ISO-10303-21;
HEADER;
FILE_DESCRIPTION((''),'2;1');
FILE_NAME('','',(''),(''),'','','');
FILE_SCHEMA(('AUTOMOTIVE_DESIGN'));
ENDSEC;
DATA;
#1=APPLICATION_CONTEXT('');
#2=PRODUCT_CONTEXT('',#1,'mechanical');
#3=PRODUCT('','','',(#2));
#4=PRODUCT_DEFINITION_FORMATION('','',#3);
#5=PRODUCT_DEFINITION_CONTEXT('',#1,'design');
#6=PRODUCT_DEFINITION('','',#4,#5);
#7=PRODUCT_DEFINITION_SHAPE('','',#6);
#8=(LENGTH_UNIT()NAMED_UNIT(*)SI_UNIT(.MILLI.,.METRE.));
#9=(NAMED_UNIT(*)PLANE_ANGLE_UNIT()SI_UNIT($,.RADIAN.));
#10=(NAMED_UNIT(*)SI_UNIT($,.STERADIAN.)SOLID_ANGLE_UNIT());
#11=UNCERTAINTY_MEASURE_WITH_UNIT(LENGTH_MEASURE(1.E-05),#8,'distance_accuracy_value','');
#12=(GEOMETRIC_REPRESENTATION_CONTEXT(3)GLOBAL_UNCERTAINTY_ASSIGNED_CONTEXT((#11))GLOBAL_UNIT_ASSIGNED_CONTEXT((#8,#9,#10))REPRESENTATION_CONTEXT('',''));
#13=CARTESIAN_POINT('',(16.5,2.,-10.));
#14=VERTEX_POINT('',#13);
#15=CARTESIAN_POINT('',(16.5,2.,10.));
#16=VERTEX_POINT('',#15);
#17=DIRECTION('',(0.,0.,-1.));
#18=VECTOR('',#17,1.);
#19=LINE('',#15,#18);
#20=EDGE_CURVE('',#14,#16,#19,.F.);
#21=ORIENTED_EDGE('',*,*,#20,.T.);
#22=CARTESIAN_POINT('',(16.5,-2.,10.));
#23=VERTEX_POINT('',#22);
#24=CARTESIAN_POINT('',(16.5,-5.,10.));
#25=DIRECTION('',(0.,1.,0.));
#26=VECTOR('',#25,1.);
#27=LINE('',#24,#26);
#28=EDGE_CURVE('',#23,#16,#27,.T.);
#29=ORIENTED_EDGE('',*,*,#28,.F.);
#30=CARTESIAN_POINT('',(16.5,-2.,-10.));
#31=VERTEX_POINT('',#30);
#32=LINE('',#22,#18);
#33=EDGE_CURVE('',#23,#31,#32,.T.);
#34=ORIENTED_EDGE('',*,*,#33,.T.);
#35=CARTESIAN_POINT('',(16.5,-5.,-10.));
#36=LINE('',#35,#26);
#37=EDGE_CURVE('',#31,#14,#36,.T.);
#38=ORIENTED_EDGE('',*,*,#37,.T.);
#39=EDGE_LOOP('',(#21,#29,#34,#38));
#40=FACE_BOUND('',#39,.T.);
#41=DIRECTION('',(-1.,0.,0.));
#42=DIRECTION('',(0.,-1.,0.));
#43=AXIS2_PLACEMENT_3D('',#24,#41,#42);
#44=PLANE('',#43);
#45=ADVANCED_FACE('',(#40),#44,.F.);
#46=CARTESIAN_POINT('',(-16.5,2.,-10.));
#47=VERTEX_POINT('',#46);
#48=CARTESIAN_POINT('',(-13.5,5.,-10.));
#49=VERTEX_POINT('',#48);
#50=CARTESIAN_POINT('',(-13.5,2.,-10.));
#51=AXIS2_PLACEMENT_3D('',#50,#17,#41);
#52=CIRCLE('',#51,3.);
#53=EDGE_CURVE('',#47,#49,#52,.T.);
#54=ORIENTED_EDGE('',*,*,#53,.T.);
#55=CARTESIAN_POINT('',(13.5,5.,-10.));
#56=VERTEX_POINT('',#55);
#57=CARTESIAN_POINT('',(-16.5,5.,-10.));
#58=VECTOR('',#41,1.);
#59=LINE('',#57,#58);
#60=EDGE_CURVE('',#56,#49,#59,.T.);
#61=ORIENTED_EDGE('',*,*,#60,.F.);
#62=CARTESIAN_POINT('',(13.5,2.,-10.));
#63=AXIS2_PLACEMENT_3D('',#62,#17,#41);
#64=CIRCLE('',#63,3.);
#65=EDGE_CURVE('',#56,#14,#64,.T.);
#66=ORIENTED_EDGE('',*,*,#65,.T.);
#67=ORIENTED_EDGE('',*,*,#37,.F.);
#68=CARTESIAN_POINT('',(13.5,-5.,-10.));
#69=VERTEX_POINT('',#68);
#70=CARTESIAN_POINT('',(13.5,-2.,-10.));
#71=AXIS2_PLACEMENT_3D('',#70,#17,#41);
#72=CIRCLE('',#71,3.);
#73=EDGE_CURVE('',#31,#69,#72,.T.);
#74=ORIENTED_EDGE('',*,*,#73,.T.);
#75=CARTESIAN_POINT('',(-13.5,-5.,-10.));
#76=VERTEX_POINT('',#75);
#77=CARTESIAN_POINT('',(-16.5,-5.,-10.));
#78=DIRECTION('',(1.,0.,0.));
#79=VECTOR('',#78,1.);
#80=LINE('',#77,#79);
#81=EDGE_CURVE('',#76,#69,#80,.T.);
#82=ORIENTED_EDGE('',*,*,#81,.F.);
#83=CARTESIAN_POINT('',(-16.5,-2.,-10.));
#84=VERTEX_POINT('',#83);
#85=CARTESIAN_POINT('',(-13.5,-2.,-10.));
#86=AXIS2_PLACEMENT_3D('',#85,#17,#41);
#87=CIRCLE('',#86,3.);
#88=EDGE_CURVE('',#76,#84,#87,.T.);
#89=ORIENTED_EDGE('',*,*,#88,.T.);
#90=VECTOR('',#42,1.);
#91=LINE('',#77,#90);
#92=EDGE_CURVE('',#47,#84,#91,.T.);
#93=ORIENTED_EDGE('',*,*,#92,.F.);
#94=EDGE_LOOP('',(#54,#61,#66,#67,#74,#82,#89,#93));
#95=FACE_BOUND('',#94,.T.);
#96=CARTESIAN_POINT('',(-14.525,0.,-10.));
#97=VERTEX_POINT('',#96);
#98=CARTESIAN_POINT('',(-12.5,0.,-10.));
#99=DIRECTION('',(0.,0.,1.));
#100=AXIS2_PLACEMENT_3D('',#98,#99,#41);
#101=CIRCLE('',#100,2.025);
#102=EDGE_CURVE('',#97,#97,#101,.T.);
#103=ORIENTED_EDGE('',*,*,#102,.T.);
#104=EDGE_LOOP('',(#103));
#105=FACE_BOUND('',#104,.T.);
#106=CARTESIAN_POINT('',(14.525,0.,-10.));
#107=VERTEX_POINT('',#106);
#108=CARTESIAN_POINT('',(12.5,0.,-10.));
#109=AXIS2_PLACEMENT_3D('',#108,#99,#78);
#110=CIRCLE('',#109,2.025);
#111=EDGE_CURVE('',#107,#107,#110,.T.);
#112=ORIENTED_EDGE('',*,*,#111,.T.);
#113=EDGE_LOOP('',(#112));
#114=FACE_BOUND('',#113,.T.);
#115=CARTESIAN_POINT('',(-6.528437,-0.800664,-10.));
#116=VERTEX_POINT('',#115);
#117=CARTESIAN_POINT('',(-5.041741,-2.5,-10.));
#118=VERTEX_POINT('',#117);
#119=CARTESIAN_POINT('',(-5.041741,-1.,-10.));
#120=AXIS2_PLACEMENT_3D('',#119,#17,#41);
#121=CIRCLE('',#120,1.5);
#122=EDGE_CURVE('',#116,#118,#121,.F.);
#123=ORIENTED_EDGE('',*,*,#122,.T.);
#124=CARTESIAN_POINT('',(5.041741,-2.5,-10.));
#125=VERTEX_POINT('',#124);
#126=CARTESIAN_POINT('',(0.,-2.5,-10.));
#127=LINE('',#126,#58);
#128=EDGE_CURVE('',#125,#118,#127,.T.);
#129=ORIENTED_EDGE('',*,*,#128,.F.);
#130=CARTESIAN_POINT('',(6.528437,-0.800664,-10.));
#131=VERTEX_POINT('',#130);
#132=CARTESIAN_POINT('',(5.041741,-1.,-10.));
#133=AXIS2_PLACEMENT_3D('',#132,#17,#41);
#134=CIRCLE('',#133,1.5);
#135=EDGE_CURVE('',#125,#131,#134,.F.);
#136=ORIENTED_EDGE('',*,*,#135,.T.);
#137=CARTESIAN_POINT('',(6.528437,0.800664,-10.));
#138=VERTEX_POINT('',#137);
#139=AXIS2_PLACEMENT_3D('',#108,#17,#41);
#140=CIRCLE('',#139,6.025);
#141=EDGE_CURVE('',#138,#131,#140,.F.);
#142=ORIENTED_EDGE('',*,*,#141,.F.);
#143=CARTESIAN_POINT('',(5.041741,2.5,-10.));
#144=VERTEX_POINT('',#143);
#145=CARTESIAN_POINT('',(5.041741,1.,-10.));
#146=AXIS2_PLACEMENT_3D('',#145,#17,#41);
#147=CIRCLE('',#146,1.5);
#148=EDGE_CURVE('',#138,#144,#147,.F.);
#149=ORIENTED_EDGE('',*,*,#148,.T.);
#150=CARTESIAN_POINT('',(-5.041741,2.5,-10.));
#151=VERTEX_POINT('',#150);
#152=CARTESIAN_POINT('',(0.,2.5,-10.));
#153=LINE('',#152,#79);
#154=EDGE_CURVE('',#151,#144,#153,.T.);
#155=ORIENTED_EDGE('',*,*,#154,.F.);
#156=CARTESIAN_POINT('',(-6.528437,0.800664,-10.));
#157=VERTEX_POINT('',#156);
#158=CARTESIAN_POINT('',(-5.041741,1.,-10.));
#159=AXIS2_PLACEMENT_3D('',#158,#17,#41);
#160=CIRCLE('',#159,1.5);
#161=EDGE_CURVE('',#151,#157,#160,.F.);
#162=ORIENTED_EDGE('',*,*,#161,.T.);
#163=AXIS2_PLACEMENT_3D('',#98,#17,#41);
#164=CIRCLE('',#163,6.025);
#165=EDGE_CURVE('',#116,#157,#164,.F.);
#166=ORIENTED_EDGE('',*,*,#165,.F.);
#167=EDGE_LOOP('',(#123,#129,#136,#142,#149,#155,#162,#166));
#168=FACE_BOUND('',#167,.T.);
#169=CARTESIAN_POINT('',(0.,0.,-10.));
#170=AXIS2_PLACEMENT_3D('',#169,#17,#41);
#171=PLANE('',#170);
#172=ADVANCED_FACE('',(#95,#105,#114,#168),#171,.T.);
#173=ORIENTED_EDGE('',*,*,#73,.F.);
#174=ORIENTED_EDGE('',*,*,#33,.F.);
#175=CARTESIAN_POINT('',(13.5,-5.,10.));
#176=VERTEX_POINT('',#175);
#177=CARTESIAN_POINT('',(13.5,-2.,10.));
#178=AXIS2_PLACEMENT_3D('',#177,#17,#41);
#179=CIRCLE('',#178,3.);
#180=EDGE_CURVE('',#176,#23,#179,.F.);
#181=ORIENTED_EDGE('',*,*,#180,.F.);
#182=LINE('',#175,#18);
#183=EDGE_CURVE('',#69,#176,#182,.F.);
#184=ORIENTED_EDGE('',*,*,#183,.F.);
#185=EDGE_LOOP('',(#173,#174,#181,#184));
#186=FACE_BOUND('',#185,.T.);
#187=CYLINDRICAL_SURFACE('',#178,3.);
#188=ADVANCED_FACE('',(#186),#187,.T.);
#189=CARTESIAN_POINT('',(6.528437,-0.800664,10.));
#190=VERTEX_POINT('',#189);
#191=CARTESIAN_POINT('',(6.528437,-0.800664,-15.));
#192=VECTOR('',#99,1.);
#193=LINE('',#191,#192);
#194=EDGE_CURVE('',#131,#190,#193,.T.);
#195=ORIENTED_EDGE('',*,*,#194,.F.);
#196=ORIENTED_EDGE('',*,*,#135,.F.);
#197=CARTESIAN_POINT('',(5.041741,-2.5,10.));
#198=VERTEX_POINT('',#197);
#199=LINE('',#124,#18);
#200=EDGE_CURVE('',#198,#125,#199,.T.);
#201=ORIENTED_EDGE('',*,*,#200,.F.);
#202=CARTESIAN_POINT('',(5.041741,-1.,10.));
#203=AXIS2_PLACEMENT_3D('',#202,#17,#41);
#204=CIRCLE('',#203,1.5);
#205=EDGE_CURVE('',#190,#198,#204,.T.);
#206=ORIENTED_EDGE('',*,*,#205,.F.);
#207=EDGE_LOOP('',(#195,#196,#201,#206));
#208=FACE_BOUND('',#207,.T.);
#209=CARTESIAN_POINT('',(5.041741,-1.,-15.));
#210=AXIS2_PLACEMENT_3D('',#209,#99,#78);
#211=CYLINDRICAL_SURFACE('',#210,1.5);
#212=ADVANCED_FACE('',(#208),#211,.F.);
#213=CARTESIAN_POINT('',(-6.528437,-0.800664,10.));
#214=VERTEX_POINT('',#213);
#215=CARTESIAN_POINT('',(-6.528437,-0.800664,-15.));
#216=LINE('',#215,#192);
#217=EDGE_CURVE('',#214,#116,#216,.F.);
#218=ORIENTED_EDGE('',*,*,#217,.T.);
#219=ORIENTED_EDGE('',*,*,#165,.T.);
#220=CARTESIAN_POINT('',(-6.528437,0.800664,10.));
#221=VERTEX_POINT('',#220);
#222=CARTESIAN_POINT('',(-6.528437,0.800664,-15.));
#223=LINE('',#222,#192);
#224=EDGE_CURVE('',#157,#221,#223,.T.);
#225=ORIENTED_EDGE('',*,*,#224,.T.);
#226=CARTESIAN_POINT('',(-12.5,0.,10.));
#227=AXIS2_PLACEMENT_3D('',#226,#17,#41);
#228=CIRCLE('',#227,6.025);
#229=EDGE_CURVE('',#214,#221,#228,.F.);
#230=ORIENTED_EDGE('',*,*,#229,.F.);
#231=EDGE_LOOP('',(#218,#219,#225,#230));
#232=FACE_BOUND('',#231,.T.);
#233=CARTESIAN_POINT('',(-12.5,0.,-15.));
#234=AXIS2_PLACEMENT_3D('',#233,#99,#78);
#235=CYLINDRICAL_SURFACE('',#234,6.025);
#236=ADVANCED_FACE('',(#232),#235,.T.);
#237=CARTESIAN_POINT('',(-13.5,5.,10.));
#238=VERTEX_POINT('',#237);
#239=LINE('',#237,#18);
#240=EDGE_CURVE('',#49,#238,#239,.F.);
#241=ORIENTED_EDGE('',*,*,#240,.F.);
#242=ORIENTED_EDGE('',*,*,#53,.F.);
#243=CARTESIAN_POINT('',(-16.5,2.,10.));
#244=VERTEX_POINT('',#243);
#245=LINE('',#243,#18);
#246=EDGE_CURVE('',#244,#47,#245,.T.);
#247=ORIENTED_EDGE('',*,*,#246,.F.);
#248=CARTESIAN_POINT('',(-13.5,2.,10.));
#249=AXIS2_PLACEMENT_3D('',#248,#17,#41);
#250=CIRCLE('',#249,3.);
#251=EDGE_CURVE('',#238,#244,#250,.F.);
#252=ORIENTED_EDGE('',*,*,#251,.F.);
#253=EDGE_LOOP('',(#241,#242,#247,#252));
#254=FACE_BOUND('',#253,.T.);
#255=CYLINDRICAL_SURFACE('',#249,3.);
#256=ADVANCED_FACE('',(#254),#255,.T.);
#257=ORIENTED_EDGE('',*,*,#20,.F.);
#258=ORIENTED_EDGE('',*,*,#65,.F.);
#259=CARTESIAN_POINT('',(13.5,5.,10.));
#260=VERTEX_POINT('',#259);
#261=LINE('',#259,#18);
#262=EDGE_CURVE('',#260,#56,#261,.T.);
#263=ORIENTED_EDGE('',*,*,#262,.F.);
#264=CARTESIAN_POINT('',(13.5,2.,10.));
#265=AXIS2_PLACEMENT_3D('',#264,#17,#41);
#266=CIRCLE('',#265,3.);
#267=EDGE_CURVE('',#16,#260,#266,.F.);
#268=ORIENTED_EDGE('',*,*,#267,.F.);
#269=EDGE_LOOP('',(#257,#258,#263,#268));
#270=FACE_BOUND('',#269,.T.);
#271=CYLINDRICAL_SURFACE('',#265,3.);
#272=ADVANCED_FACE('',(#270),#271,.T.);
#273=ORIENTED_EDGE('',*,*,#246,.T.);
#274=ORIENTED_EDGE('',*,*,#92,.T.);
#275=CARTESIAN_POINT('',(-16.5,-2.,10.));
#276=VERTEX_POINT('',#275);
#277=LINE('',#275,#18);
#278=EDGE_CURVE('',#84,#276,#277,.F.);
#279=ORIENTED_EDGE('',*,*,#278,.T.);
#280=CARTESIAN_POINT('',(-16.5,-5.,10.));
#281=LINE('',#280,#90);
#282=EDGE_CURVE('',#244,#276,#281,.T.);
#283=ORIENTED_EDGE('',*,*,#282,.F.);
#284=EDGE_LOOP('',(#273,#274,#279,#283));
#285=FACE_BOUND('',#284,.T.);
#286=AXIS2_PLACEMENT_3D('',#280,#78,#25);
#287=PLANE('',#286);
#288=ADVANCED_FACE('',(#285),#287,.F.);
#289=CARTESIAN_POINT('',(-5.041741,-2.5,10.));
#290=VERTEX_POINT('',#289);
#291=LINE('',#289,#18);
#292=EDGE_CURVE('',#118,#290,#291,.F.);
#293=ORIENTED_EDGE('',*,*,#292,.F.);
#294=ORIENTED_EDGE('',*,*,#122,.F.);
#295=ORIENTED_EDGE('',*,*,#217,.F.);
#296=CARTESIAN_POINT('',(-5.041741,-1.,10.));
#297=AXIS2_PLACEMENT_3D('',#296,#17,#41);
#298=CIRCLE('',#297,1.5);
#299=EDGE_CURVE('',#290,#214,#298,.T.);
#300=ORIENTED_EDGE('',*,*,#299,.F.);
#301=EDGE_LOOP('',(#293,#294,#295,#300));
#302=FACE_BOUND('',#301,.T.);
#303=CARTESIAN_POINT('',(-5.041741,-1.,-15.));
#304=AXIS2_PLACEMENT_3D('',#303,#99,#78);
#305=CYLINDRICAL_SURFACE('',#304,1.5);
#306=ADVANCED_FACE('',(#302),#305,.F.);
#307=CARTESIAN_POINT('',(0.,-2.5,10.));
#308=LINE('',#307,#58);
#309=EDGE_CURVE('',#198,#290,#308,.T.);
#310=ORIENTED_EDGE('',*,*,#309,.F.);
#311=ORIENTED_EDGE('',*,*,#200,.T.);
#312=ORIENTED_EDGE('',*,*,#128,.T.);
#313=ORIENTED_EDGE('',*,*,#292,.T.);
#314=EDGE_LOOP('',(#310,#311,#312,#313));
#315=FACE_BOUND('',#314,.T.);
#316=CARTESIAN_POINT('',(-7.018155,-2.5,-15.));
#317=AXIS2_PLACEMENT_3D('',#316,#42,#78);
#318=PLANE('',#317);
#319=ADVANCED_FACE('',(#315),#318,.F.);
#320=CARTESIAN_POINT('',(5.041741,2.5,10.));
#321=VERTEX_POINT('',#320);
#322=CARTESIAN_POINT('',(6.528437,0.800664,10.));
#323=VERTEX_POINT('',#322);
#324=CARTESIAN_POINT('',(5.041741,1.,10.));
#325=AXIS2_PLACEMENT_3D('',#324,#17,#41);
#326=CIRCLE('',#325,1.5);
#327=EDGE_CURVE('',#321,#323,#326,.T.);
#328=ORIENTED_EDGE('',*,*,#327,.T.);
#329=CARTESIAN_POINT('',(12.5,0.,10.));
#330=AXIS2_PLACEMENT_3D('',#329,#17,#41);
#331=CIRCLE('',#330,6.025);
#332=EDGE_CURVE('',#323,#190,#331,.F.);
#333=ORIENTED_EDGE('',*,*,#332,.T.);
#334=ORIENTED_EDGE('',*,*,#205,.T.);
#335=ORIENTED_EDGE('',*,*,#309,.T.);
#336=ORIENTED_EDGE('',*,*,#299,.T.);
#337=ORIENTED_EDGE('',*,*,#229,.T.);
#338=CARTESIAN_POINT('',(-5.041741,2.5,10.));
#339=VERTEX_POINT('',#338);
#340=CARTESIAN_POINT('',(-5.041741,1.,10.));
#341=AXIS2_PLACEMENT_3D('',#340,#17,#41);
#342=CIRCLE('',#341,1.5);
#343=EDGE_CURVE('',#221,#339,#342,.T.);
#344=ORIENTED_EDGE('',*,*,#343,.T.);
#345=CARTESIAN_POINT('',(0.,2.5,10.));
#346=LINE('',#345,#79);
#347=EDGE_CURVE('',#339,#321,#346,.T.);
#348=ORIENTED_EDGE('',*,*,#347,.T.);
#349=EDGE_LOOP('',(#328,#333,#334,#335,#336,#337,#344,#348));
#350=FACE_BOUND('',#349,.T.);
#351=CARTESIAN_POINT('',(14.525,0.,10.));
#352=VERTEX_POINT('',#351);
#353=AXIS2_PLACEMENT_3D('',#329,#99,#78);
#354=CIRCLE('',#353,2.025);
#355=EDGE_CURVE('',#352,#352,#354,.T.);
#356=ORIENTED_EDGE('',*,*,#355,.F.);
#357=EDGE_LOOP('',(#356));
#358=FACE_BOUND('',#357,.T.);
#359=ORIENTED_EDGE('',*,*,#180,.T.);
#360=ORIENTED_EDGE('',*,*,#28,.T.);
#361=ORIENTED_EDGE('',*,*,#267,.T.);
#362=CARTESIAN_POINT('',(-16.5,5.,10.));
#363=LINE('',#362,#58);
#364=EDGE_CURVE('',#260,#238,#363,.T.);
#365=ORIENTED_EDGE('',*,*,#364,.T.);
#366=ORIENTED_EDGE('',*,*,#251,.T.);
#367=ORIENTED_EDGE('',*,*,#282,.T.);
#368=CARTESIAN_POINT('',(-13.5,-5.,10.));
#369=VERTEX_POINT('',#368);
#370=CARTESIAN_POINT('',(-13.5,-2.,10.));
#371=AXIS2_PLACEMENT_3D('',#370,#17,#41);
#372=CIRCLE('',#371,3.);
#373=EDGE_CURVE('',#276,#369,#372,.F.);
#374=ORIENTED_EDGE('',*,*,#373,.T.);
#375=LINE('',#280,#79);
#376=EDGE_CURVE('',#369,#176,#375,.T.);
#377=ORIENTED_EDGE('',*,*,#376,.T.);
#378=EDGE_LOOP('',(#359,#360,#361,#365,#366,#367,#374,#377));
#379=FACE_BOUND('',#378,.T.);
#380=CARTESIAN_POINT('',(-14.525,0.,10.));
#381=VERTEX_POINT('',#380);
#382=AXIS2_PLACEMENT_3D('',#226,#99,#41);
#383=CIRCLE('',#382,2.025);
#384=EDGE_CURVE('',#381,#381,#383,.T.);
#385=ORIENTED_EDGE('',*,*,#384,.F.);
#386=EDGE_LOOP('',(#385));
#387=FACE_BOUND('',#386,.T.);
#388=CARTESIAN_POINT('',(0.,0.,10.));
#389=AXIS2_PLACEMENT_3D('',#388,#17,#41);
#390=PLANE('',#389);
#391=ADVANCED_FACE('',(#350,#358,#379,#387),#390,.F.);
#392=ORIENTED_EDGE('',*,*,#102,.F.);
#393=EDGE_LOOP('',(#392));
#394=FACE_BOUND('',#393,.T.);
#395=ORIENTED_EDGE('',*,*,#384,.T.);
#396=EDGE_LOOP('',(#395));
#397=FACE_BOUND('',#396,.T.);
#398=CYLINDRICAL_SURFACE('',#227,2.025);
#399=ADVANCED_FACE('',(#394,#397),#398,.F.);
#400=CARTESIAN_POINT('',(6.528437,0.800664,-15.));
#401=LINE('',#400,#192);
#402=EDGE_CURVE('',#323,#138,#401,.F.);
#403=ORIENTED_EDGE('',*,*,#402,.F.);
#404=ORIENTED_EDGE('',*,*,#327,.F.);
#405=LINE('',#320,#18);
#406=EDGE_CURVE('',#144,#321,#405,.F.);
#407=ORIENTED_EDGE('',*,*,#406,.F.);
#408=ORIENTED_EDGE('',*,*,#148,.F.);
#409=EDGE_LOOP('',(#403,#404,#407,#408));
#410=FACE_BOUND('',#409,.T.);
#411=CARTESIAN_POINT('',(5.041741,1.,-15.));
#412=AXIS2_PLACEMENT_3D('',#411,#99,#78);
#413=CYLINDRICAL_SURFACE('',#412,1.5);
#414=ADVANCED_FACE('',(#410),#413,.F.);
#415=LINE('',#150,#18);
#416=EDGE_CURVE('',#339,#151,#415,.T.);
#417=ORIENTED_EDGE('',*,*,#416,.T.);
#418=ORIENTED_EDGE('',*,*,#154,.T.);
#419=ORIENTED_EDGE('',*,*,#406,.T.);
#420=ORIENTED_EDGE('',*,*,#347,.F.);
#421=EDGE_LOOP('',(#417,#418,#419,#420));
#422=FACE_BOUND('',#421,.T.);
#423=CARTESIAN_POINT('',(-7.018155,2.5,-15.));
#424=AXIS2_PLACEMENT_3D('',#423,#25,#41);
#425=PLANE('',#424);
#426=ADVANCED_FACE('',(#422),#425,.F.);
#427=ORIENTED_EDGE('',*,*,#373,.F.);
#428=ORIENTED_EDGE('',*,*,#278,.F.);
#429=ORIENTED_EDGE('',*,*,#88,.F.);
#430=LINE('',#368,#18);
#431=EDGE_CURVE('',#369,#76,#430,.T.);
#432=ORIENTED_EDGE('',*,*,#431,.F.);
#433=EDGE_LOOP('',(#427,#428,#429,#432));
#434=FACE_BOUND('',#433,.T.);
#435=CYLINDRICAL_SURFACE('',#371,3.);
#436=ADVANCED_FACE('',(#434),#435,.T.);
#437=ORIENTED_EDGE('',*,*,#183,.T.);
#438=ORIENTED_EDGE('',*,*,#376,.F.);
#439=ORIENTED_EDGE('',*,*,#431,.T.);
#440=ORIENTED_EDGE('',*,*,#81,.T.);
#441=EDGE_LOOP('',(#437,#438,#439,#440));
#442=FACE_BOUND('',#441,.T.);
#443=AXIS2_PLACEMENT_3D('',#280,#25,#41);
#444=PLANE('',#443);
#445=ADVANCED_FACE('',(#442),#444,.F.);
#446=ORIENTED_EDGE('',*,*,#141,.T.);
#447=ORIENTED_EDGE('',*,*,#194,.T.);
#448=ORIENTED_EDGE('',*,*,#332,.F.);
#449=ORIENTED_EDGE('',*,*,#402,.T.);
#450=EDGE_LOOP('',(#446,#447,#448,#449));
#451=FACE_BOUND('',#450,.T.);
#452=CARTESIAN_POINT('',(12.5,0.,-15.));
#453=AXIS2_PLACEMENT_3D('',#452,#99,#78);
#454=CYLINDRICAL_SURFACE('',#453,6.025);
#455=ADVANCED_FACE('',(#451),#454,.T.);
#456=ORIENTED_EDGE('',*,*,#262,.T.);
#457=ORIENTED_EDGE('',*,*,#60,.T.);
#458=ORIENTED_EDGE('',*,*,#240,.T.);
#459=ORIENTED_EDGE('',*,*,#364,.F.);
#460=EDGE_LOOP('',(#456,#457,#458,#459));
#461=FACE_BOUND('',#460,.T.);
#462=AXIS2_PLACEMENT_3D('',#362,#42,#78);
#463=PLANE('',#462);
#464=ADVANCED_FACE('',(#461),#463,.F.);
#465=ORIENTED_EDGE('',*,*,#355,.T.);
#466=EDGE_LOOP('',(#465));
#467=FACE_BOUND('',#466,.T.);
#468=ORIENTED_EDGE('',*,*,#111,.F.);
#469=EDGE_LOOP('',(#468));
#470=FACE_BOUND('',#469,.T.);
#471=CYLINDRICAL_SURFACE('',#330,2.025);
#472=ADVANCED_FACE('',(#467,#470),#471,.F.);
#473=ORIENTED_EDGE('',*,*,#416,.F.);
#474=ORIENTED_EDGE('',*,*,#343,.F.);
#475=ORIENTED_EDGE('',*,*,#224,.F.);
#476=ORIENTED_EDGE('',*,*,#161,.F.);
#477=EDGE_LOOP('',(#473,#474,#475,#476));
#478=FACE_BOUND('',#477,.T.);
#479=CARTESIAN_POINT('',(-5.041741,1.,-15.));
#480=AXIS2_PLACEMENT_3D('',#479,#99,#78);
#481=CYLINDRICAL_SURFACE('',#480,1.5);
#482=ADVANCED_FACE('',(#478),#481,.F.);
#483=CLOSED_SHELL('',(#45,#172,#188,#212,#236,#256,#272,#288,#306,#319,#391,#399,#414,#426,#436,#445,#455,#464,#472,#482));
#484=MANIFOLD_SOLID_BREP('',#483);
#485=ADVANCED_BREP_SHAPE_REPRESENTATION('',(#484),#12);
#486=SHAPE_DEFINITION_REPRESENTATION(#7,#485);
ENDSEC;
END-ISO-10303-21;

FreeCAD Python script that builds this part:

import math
import FreeCAD as App
import Part
import Sketcher

V = App.Vector


def edges_at(feature, points):
    """Names of the edges that pass closest to the given points."""
    edges = feature.Shape.Edges
    near = lambda p: min(range(len(edges)), key=lambda i: edges[i].distToShape(Part.Vertex(*p))[0])
    return sorted({f"Edge{near(p) + 1}" for p in points})


def add_polygon(sketch, points):
    """Adds a closed chain of lines whose ends are joined by coincident constraints."""
    first, n = sketch.GeometryCount, len(points)
    for a, b in zip(points, points[1:] + points[:1]):
        sketch.addGeometry(Part.LineSegment(App.Vector(*a, 0), App.Vector(*b, 0)), False)
    for i in range(n):
        sketch.addConstraint(Sketcher.Constraint("Coincident", first + i, 2, first + (i + 1) % n, 1))

doc = App.newDocument("Part")
body = doc.addObject("PartDesign::Body", "Body")

# Sketch on XY plane
sketch1 = doc.addObject("Sketcher::SketchObject", "Sketch")
body.addObject(sketch1)
sketch1.AttachmentSupport = (doc.XY_Plane, [""])
sketch1.MapMode = "FlatFace"
add_polygon(sketch1, [(-16.5, 5), (-16.5, -5), (16.5, -5), (16.5, 5)])  # lines 0-3
sketch1.addGeometry(Part.Circle(V(-12.5, 0, 0), V(0, 0, 1), 2), False)  # 4
sketch1.addGeometry(Part.Circle(V(12.5, 0, 0), V(0, 0, 1), 2), False)  # 5
sketch1.addConstraint([
    Sketcher.Constraint("Vertical", 0),
    Sketcher.Constraint("Horizontal", 1),
    Sketcher.Constraint("Vertical", 2),
    Sketcher.Constraint("Horizontal", 3),
    Sketcher.Constraint("Equal", 4, 5),
    Sketcher.Constraint("Symmetric", 4, 3, 5, 3, -1, 1),
    Sketcher.Constraint("Symmetric", 0, 2, 2, 2, -1, 1),
    Sketcher.Constraint("PointOnObject", 4, 3, -1),
    Sketcher.Constraint("Diameter", 4, 4.05),
    Sketcher.Constraint("DistanceX", 1, 1, 1, 2, 33.0),
    Sketcher.Constraint("DistanceY", 0, 2, 0, 1, 10.0),
    Sketcher.Constraint("DistanceX", 4, 3, 5, 3, 25.0),
])
pad1 = doc.addObject("PartDesign::Pad", "Pad")
body.addObject(pad1)
pad1.Profile = sketch1
pad1.Length = 20
pad1.Midplane = True

# Sketch on XY plane
sketch2 = doc.addObject("Sketcher::SketchObject", "Sketch001")
body.addObject(sketch2)
sketch2.AttachmentSupport = (doc.XY_Plane, [""])
sketch2.MapMode = "FlatFace"
sketch2.AttachmentOffset = App.Placement(V(0, 0, 10), App.Rotation())
sketch2.addGeometry([
    Part.LineSegment(V(7, 2, 0), V(-7, 2, 0)),
    Part.ArcOfCircle(Part.Circle(V(-12, 0, 0), V(0, 0, 1), 6), math.radians(-25), math.radians(25)),
    Part.LineSegment(V(-7, -2, 0), V(7, -2, 0)),
    Part.ArcOfCircle(Part.Circle(V(12, 0, 0), V(0, 0, 1), 6), math.radians(155), math.radians(205)),
], False)
sketch2.addConstraint([
    Sketcher.Constraint("Coincident", 0, 2, 1, 2),
    Sketcher.Constraint("Coincident", 1, 1, 2, 1),
    Sketcher.Constraint("Coincident", 2, 2, 3, 2),
    Sketcher.Constraint("Coincident", 3, 1, 0, 1),
    Sketcher.Constraint("Horizontal", 0),
    Sketcher.Constraint("Horizontal", 2),
    Sketcher.Constraint("Equal", 1, 3),
    Sketcher.Constraint("Symmetric", 1, 3, 3, 3, -1, 1),
    Sketcher.Constraint("Symmetric", 0, 2, 1, 1, -1),
    Sketcher.Constraint("Radius", 1, 6.025),
    Sketcher.Constraint("DistanceX", 1, 3, 3, 3, 25.0),
    Sketcher.Constraint("DistanceY", 1, 1, 0, 2, 5.0),
])
pocket1 = doc.addObject("PartDesign::Pocket", "Pocket")
body.addObject(pocket1)
pocket1.Profile = sketch2
pocket1.Length = 50
pocket1.Midplane = True
doc.recompute()

fillet = doc.addObject("PartDesign::Fillet", "Fillet")
body.addObject(fillet)
fillet.Base = (pocket1, edges_at(pocket1, [
    (-7.018, -2.5, 0),
    (-7.018, 2.5, 0),
    (7.018, 2.5, 0),
    (7.018, -2.5, 0),
]))
fillet.Radius = 1.5
doc.recompute()

fillet2 = doc.addObject("PartDesign::Fillet", "Fillet001")
body.addObject(fillet2)
fillet2.Base = (fillet, edges_at(fillet, [
    (16.5, -5, 0),
    (-16.5, -5, 0),
    (-16.5, 5, 0),
    (16.5, 5, 0),
]))
fillet2.Radius = 3

doc.recompute()
